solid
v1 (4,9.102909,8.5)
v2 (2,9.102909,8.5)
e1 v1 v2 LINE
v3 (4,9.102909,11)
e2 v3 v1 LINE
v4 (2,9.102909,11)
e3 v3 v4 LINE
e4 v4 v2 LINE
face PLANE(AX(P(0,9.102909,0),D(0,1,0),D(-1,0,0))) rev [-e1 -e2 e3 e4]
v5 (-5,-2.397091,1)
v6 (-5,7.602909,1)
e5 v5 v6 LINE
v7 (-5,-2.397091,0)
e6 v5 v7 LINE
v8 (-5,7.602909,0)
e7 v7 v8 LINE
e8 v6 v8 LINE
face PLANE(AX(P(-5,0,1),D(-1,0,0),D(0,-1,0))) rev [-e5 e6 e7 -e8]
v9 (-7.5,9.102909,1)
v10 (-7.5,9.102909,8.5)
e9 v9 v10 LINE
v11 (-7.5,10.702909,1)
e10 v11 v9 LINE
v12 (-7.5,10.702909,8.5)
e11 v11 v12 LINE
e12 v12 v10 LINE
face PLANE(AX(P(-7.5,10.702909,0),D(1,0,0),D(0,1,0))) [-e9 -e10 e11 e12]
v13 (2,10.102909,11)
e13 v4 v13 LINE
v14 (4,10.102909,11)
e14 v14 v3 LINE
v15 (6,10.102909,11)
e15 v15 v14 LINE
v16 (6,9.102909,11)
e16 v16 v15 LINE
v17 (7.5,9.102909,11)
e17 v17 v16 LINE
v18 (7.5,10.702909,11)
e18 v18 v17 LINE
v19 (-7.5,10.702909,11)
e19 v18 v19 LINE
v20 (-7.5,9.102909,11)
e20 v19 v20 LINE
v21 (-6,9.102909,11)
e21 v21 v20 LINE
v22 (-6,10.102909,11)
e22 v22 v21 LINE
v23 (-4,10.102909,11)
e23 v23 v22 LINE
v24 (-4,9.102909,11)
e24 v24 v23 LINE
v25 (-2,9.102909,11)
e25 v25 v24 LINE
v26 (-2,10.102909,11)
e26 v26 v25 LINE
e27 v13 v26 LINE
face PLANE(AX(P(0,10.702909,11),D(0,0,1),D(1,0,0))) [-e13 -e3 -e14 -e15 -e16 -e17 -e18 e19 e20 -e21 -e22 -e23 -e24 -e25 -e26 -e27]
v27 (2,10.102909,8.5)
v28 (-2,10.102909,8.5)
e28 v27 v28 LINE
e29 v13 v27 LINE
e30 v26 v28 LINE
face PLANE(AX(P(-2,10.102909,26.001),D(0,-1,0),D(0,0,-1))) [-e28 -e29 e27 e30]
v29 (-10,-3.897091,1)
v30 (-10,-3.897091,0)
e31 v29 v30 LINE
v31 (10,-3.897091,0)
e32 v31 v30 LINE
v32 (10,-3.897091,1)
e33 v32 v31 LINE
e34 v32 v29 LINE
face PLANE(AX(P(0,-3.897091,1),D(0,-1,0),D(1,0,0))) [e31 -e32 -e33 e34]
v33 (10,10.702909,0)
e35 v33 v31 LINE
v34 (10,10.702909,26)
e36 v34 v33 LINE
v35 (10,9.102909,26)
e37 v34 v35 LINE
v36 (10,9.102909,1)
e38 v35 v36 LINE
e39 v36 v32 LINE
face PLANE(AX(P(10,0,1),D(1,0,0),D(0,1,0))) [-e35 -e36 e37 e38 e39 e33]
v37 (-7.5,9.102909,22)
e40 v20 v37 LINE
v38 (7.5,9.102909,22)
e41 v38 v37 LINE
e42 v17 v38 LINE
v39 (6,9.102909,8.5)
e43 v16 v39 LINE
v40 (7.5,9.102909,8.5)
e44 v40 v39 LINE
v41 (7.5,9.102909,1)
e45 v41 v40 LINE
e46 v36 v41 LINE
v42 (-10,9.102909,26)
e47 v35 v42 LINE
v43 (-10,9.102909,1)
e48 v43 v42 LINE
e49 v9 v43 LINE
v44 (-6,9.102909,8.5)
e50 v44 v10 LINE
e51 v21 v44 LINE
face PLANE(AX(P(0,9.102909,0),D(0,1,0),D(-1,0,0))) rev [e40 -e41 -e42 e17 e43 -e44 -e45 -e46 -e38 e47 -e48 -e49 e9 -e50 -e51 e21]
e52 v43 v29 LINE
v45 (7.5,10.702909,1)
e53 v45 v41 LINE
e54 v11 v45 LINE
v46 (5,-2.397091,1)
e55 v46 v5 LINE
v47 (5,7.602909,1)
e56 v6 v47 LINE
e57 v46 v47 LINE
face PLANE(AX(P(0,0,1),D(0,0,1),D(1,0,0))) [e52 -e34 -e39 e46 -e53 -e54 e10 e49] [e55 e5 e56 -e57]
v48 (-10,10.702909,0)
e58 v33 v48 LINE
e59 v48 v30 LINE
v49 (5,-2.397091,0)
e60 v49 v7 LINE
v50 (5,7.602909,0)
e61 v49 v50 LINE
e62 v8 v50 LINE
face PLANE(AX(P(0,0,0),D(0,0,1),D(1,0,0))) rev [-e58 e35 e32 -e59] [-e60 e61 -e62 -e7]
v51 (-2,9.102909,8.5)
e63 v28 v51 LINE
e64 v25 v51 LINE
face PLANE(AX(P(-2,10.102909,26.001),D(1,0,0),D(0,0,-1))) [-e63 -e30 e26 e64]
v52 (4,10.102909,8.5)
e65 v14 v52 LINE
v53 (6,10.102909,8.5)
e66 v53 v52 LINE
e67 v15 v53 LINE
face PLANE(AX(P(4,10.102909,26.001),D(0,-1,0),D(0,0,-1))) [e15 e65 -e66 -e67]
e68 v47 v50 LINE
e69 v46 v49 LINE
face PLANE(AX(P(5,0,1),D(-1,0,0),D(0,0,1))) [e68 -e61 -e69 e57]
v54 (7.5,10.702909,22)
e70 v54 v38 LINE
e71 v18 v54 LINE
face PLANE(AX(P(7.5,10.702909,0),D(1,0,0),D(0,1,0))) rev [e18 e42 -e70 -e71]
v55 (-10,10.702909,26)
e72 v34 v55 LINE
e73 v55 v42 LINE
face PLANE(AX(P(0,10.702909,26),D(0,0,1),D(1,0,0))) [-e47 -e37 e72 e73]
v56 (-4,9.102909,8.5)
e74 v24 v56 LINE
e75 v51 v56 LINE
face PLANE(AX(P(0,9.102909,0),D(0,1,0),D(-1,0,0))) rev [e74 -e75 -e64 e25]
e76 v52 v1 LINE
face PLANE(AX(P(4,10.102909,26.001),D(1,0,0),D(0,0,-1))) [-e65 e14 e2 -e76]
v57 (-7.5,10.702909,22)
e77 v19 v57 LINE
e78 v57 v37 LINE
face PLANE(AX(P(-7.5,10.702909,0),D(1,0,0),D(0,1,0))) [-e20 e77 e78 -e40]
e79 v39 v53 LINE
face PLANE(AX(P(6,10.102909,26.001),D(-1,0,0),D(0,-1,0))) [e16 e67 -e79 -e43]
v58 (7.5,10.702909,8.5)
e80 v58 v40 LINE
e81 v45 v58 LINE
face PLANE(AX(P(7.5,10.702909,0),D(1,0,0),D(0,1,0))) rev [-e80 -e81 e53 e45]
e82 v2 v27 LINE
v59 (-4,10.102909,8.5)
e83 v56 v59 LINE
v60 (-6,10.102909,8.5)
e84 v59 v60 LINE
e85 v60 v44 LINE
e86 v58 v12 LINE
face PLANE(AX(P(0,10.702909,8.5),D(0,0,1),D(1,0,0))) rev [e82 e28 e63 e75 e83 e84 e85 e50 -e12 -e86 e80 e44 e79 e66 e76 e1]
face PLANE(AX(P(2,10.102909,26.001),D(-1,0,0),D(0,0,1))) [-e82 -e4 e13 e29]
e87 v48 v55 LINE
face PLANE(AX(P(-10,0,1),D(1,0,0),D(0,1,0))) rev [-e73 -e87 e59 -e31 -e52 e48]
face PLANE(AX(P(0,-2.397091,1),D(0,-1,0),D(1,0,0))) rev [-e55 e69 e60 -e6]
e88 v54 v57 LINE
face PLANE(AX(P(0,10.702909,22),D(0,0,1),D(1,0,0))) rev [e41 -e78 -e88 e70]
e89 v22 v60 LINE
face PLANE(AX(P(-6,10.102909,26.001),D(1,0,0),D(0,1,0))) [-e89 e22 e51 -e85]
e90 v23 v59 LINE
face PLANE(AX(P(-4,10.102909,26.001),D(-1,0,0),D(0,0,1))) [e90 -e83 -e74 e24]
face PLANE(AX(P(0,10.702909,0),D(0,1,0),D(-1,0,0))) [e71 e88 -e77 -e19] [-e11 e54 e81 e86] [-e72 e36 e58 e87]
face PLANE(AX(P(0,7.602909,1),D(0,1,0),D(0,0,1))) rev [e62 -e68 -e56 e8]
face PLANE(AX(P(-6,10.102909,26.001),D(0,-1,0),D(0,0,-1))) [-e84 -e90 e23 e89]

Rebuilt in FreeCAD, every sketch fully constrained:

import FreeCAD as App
import Part
import Sketcher
from FreeCAD import Vector

doc = App.newDocument("Part")
body = doc.addObject("PartDesign::Body", "Body")

sketch1 = doc.addObject("Sketcher::SketchObject", "Sketch")
body.addObject(sketch1)
sketch1.AttachmentSupport = (doc.XY_Plane, [""])
sketch1.MapMode = "FlatFace"
sketch1.addGeometry([
    Part.LineSegment(Vector(-10, 9.102909, 0), Vector(-10, -3.897091, 0)),
    Part.LineSegment(Vector(-10, -3.897091, 0), Vector(10, -3.897091, 0)),
    Part.LineSegment(Vector(10, -3.897091, 0), Vector(10, 9.102909, 0)),
    Part.LineSegment(Vector(10, 9.102909, 0), Vector(-10, 9.102909, 0)),
    Part.LineSegment(Vector(5, -2.397091, 0), Vector(-5, -2.397091, 0)),
    Part.LineSegment(Vector(-5, -2.397091, 0), Vector(-5, 7.602909, 0)),
    Part.LineSegment(Vector(-5, 7.602909, 0), Vector(5, 7.602909, 0)),
    Part.LineSegment(Vector(5, 7.602909, 0), Vector(5, -2.397091, 0)),
], False)
sketch1.addConstraint([
    Sketcher.Constraint("Coincident", 0, 2, 1, 1),
    Sketcher.Constraint("Coincident", 1, 2, 2, 1),
    Sketcher.Constraint("Coincident", 2, 2, 3, 1),
    Sketcher.Constraint("Coincident", 3, 2, 0, 1),
    Sketcher.Constraint("Coincident", 4, 2, 5, 1),
    Sketcher.Constraint("Coincident", 5, 2, 6, 1),
    Sketcher.Constraint("Coincident", 6, 2, 7, 1),
    Sketcher.Constraint("Coincident", 7, 2, 4, 1),
    Sketcher.Constraint("Vertical", 0),
    Sketcher.Constraint("Horizontal", 1),
    Sketcher.Constraint("Vertical", 2),
    Sketcher.Constraint("Horizontal", 3),
    Sketcher.Constraint("Horizontal", 4),
    Sketcher.Constraint("Vertical", 5),
    Sketcher.Constraint("Horizontal", 6),
    Sketcher.Constraint("Vertical", 7),
    Sketcher.Constraint("Equal", 6, 5),
    Sketcher.Constraint("DistanceX", 1, 1, 1, 2, 20.0),
    Sketcher.Constraint("DistanceX", 4, 2, 4, 1, 10.0),
    Sketcher.Constraint("DistanceY", 0, 2, 0, 1, 13.0),
    Sketcher.Constraint("DistanceX", 0, 2, -1, 1, 10.0),
    Sketcher.Constraint("DistanceX", 4, 2, -1, 1, 5.0),
    Sketcher.Constraint("DistanceY", 0, 2, 4, 2, 1.5),
    Sketcher.Constraint("DistanceY", 0, 2, -1, 1, 3.897091),
])
pad1 = doc.addObject("PartDesign::Pad", "Pad")
body.addObject(pad1)
pad1.Profile = sketch1
pad1.Length = 1

sketch2 = doc.addObject("Sketcher::SketchObject", "Sketch001")
body.addObject(sketch2)
sketch2.AttachmentSupport = (doc.XZ_Plane, [""])
sketch2.MapMode = "FlatFace"
sketch2.AttachmentOffset = App.Placement(Vector(0, 0, -9.102909), App.Rotation())
sketch2.addGeometry([
    Part.LineSegment(Vector(10, 0, 0), Vector(-10, 0, 0)),
    Part.LineSegment(Vector(-10, 0, 0), Vector(-10, 26, 0)),
    Part.LineSegment(Vector(-10, 26, 0), Vector(10, 26, 0)),
    Part.LineSegment(Vector(10, 26, 0), Vector(10, 0, 0)),
    Part.LineSegment(Vector(-7.5, 22, 0), Vector(-7.5, 11, 0)),
    Part.LineSegment(Vector(-7.5, 11, 0), Vector(7.5, 11, 0)),
    Part.LineSegment(Vector(7.5, 11, 0), Vector(7.5, 22, 0)),
    Part.LineSegment(Vector(7.5, 22, 0), Vector(-7.5, 22, 0)),
    Part.LineSegment(Vector(-7.5, 8.5, 0), Vector(-7.5, 1, 0)),
    Part.LineSegment(Vector(-7.5, 1, 0), Vector(7.5, 1, 0)),
    Part.LineSegment(Vector(7.5, 1, 0), Vector(7.5, 8.5, 0)),
    Part.LineSegment(Vector(7.5, 8.5, 0), Vector(-7.5, 8.5, 0)),
], False)
sketch2.addConstraint([
    Sketcher.Constraint("Coincident", 0, 2, 1, 1),
    Sketcher.Constraint("Coincident", 1, 2, 2, 1),
    Sketcher.Constraint("Coincident", 2, 2, 3, 1),
    Sketcher.Constraint("Coincident", 3, 2, 0, 1),
    Sketcher.Constraint("Coincident", 4, 2, 5, 1),
    Sketcher.Constraint("Coincident", 5, 2, 6, 1),
    Sketcher.Constraint("Coincident", 6, 2, 7, 1),
    Sketcher.Constraint("Coincident", 7, 2, 4, 1),
    Sketcher.Constraint("Coincident", 8, 2, 9, 1),
    Sketcher.Constraint("Coincident", 9, 2, 10, 1),
    Sketcher.Constraint("Coincident", 10, 2, 11, 1),
    Sketcher.Constraint("Coincident", 11, 2, 8, 1),
    Sketcher.Constraint("Horizontal", 0),
    Sketcher.Constraint("Vertical", 1),
    Sketcher.Constraint("Horizontal", 2),
    Sketcher.Constraint("Vertical", 3),
    Sketcher.Constraint("Vertical", 4),
    Sketcher.Constraint("Horizontal", 5),
    Sketcher.Constraint("Vertical", 6),
    Sketcher.Constraint("Horizontal", 7),
    Sketcher.Constraint("Vertical", 8),
    Sketcher.Constraint("Horizontal", 9),
    Sketcher.Constraint("Vertical", 10),
    Sketcher.Constraint("Horizontal", 11),
    Sketcher.Constraint("Symmetric", 0, 2, 3, 2, -1, 1),
    Sketcher.Constraint("Vertical", 7, 2, 8, 2),
    Sketcher.Constraint("Vertical", 6, 2, 9, 2),
    Sketcher.Constraint("DistanceX", 0, 2, 0, 1, 20.0),
    Sketcher.Constraint("DistanceX", 5, 1, 5, 2, 15.0),
    Sketcher.Constraint("DistanceY", 1, 1, 1, 2, 26.0),
    Sketcher.Constraint("DistanceY", 4, 2, 4, 1, 11.0),
    Sketcher.Constraint("DistanceY", 8, 2, 8, 1, 7.5),
    Sketcher.Constraint("DistanceY", -1, 1, 4, 2, 11.0),
    Sketcher.Constraint("DistanceY", -1, 1, 8, 2, 1.0),
    Sketcher.Constraint("DistanceX", 4, 2, -1, 1, 7.5),
])
pad2 = doc.addObject("PartDesign::Pad", "Pad001")
body.addObject(pad2)
pad2.Profile = sketch2
pad2.Length = 1.6
pad2.Reversed = True

sketch3 = doc.addObject("Sketcher::SketchObject", "Sketch002")
body.addObject(sketch3)
sketch3.AttachmentSupport = (doc.XY_Plane, [""])
sketch3.MapMode = "FlatFace"
sketch3.AttachmentOffset = App.Placement(Vector(0, 0, 1), App.Rotation())
sketch3.addGeometry([
    Part.LineSegment(Vector(-6, 10.102909, 0), Vector(-6, 9.102909, 0)),
    Part.LineSegment(Vector(-6, 9.102909, 0), Vector(-4, 9.102909, 0)),
    Part.LineSegment(Vector(-4, 9.102909, 0), Vector(-4, 10.102909, 0)),
    Part.LineSegment(Vector(-4, 10.102909, 0), Vector(-6, 10.102909, 0)),
], False)
sketch3.addConstraint([
    Sketcher.Constraint("Coincident", 0, 2, 1, 1),
    Sketcher.Constraint("Coincident", 1, 2, 2, 1),
    Sketcher.Constraint("Coincident", 2, 2, 3, 1),
    Sketcher.Constraint("Coincident", 3, 2, 0, 1),
    Sketcher.Constraint("Vertical", 0),
    Sketcher.Constraint("Horizontal", 1),
    Sketcher.Constraint("Vertical", 2),
    Sketcher.Constraint("Horizontal", 3),
    Sketcher.Constraint("DistanceX", 1, 1, 1, 2, 2.0),
    Sketcher.Constraint("DistanceY", 0, 2, 0, 1, 1.0),
    Sketcher.Constraint("DistanceX", 0, 2, -1, 1, 6.0),
    Sketcher.Constraint("DistanceY", -1, 1, 0, 2, 9.102909),
])
pocket1 = doc.addObject("PartDesign::Pocket", "Pocket")
body.addObject(pocket1)
pocket1.Profile = sketch3
pocket1.Length = 10
pocket1.Reversed = True

sketch4 = doc.addObject("Sketcher::SketchObject", "Sketch003")
body.addObject(sketch4)
sketch4.AttachmentSupport = (doc.XY_Plane, [""])
sketch4.MapMode = "FlatFace"
sketch4.AttachmentOffset = App.Placement(Vector(0, 0, 1), App.Rotation())
sketch4.addGeometry([
    Part.LineSegment(Vector(4, 10.102909, 0), Vector(4, 9.102909, 0)),
    Part.LineSegment(Vector(4, 9.102909, 0), Vector(6, 9.102909, 0)),
    Part.LineSegment(Vector(6, 9.102909, 0), Vector(6, 10.102909, 0)),
    Part.LineSegment(Vector(6, 10.102909, 0), Vector(4, 10.102909, 0)),
], False)
sketch4.addConstraint([
    Sketcher.Constraint("Coincident", 0, 2, 1, 1),
    Sketcher.Constraint("Coincident", 1, 2, 2, 1),
    Sketcher.Constraint("Coincident", 2, 2, 3, 1),
    Sketcher.Constraint("Coincident", 3, 2, 0, 1),
    Sketcher.Constraint("Vertical", 0),
    Sketcher.Constraint("Horizontal", 1),
    Sketcher.Constraint("Vertical", 2),
    Sketcher.Constraint("Horizontal", 3),
    Sketcher.Constraint("DistanceX", 1, 1, 1, 2, 2.0),
    Sketcher.Constraint("DistanceY", 0, 2, 0, 1, 1.0),
    Sketcher.Constraint("DistanceX", -1, 1, 0, 2, 4.0),
    Sketcher.Constraint("DistanceY", -1, 1, 0, 2, 9.102909),
])
pocket2 = doc.addObject("PartDesign::Pocket", "Pocket001")
body.addObject(pocket2)
pocket2.Profile = sketch4
pocket2.Length = 10
pocket2.Reversed = True

sketch5 = doc.addObject("Sketcher::SketchObject", "Sketch004")
body.addObject(sketch5)
sketch5.AttachmentSupport = (doc.XY_Plane, [""])
sketch5.MapMode = "FlatFace"
sketch5.AttachmentOffset = App.Placement(Vector(0, 0, 1), App.Rotation())
sketch5.addGeometry([
    Part.LineSegment(Vector(-2, 10.102909, 0), Vector(-2, 9.102909, 0)),
    Part.LineSegment(Vector(-2, 9.102909, 0), Vector(2, 9.102909, 0)),
    Part.LineSegment(Vector(2, 9.102909, 0), Vector(2, 10.102909, 0)),
    Part.LineSegment(Vector(2, 10.102909, 0), Vector(-2, 10.102909, 0)),
], False)
sketch5.addConstraint([
    Sketcher.Constraint("Coincident", 0, 2, 1, 1),
    Sketcher.Constraint("Coincident", 1, 2, 2, 1),
    Sketcher.Constraint("Coincident", 2, 2, 3, 1),
    Sketcher.Constraint("Coincident", 3, 2, 0, 1),
    Sketcher.Constraint("Vertical", 0),
    Sketcher.Constraint("Horizontal", 1),
    Sketcher.Constraint("Vertical", 2),
    Sketcher.Constraint("Horizontal", 3),
    Sketcher.Constraint("DistanceX", 1, 1, 1, 2, 4.0),
    Sketcher.Constraint("DistanceY", 0, 2, 0, 1, 1.0),
    Sketcher.Constraint("DistanceX", 0, 2, -1, 1, 2.0),
    Sketcher.Constraint("DistanceY", -1, 1, 0, 2, 9.102909),
])
pocket3 = doc.addObject("PartDesign::Pocket", "Pocket002")
body.addObject(pocket3)
pocket3.Profile = sketch5
pocket3.Length = 10
pocket3.Reversed = True

doc.recompute()
